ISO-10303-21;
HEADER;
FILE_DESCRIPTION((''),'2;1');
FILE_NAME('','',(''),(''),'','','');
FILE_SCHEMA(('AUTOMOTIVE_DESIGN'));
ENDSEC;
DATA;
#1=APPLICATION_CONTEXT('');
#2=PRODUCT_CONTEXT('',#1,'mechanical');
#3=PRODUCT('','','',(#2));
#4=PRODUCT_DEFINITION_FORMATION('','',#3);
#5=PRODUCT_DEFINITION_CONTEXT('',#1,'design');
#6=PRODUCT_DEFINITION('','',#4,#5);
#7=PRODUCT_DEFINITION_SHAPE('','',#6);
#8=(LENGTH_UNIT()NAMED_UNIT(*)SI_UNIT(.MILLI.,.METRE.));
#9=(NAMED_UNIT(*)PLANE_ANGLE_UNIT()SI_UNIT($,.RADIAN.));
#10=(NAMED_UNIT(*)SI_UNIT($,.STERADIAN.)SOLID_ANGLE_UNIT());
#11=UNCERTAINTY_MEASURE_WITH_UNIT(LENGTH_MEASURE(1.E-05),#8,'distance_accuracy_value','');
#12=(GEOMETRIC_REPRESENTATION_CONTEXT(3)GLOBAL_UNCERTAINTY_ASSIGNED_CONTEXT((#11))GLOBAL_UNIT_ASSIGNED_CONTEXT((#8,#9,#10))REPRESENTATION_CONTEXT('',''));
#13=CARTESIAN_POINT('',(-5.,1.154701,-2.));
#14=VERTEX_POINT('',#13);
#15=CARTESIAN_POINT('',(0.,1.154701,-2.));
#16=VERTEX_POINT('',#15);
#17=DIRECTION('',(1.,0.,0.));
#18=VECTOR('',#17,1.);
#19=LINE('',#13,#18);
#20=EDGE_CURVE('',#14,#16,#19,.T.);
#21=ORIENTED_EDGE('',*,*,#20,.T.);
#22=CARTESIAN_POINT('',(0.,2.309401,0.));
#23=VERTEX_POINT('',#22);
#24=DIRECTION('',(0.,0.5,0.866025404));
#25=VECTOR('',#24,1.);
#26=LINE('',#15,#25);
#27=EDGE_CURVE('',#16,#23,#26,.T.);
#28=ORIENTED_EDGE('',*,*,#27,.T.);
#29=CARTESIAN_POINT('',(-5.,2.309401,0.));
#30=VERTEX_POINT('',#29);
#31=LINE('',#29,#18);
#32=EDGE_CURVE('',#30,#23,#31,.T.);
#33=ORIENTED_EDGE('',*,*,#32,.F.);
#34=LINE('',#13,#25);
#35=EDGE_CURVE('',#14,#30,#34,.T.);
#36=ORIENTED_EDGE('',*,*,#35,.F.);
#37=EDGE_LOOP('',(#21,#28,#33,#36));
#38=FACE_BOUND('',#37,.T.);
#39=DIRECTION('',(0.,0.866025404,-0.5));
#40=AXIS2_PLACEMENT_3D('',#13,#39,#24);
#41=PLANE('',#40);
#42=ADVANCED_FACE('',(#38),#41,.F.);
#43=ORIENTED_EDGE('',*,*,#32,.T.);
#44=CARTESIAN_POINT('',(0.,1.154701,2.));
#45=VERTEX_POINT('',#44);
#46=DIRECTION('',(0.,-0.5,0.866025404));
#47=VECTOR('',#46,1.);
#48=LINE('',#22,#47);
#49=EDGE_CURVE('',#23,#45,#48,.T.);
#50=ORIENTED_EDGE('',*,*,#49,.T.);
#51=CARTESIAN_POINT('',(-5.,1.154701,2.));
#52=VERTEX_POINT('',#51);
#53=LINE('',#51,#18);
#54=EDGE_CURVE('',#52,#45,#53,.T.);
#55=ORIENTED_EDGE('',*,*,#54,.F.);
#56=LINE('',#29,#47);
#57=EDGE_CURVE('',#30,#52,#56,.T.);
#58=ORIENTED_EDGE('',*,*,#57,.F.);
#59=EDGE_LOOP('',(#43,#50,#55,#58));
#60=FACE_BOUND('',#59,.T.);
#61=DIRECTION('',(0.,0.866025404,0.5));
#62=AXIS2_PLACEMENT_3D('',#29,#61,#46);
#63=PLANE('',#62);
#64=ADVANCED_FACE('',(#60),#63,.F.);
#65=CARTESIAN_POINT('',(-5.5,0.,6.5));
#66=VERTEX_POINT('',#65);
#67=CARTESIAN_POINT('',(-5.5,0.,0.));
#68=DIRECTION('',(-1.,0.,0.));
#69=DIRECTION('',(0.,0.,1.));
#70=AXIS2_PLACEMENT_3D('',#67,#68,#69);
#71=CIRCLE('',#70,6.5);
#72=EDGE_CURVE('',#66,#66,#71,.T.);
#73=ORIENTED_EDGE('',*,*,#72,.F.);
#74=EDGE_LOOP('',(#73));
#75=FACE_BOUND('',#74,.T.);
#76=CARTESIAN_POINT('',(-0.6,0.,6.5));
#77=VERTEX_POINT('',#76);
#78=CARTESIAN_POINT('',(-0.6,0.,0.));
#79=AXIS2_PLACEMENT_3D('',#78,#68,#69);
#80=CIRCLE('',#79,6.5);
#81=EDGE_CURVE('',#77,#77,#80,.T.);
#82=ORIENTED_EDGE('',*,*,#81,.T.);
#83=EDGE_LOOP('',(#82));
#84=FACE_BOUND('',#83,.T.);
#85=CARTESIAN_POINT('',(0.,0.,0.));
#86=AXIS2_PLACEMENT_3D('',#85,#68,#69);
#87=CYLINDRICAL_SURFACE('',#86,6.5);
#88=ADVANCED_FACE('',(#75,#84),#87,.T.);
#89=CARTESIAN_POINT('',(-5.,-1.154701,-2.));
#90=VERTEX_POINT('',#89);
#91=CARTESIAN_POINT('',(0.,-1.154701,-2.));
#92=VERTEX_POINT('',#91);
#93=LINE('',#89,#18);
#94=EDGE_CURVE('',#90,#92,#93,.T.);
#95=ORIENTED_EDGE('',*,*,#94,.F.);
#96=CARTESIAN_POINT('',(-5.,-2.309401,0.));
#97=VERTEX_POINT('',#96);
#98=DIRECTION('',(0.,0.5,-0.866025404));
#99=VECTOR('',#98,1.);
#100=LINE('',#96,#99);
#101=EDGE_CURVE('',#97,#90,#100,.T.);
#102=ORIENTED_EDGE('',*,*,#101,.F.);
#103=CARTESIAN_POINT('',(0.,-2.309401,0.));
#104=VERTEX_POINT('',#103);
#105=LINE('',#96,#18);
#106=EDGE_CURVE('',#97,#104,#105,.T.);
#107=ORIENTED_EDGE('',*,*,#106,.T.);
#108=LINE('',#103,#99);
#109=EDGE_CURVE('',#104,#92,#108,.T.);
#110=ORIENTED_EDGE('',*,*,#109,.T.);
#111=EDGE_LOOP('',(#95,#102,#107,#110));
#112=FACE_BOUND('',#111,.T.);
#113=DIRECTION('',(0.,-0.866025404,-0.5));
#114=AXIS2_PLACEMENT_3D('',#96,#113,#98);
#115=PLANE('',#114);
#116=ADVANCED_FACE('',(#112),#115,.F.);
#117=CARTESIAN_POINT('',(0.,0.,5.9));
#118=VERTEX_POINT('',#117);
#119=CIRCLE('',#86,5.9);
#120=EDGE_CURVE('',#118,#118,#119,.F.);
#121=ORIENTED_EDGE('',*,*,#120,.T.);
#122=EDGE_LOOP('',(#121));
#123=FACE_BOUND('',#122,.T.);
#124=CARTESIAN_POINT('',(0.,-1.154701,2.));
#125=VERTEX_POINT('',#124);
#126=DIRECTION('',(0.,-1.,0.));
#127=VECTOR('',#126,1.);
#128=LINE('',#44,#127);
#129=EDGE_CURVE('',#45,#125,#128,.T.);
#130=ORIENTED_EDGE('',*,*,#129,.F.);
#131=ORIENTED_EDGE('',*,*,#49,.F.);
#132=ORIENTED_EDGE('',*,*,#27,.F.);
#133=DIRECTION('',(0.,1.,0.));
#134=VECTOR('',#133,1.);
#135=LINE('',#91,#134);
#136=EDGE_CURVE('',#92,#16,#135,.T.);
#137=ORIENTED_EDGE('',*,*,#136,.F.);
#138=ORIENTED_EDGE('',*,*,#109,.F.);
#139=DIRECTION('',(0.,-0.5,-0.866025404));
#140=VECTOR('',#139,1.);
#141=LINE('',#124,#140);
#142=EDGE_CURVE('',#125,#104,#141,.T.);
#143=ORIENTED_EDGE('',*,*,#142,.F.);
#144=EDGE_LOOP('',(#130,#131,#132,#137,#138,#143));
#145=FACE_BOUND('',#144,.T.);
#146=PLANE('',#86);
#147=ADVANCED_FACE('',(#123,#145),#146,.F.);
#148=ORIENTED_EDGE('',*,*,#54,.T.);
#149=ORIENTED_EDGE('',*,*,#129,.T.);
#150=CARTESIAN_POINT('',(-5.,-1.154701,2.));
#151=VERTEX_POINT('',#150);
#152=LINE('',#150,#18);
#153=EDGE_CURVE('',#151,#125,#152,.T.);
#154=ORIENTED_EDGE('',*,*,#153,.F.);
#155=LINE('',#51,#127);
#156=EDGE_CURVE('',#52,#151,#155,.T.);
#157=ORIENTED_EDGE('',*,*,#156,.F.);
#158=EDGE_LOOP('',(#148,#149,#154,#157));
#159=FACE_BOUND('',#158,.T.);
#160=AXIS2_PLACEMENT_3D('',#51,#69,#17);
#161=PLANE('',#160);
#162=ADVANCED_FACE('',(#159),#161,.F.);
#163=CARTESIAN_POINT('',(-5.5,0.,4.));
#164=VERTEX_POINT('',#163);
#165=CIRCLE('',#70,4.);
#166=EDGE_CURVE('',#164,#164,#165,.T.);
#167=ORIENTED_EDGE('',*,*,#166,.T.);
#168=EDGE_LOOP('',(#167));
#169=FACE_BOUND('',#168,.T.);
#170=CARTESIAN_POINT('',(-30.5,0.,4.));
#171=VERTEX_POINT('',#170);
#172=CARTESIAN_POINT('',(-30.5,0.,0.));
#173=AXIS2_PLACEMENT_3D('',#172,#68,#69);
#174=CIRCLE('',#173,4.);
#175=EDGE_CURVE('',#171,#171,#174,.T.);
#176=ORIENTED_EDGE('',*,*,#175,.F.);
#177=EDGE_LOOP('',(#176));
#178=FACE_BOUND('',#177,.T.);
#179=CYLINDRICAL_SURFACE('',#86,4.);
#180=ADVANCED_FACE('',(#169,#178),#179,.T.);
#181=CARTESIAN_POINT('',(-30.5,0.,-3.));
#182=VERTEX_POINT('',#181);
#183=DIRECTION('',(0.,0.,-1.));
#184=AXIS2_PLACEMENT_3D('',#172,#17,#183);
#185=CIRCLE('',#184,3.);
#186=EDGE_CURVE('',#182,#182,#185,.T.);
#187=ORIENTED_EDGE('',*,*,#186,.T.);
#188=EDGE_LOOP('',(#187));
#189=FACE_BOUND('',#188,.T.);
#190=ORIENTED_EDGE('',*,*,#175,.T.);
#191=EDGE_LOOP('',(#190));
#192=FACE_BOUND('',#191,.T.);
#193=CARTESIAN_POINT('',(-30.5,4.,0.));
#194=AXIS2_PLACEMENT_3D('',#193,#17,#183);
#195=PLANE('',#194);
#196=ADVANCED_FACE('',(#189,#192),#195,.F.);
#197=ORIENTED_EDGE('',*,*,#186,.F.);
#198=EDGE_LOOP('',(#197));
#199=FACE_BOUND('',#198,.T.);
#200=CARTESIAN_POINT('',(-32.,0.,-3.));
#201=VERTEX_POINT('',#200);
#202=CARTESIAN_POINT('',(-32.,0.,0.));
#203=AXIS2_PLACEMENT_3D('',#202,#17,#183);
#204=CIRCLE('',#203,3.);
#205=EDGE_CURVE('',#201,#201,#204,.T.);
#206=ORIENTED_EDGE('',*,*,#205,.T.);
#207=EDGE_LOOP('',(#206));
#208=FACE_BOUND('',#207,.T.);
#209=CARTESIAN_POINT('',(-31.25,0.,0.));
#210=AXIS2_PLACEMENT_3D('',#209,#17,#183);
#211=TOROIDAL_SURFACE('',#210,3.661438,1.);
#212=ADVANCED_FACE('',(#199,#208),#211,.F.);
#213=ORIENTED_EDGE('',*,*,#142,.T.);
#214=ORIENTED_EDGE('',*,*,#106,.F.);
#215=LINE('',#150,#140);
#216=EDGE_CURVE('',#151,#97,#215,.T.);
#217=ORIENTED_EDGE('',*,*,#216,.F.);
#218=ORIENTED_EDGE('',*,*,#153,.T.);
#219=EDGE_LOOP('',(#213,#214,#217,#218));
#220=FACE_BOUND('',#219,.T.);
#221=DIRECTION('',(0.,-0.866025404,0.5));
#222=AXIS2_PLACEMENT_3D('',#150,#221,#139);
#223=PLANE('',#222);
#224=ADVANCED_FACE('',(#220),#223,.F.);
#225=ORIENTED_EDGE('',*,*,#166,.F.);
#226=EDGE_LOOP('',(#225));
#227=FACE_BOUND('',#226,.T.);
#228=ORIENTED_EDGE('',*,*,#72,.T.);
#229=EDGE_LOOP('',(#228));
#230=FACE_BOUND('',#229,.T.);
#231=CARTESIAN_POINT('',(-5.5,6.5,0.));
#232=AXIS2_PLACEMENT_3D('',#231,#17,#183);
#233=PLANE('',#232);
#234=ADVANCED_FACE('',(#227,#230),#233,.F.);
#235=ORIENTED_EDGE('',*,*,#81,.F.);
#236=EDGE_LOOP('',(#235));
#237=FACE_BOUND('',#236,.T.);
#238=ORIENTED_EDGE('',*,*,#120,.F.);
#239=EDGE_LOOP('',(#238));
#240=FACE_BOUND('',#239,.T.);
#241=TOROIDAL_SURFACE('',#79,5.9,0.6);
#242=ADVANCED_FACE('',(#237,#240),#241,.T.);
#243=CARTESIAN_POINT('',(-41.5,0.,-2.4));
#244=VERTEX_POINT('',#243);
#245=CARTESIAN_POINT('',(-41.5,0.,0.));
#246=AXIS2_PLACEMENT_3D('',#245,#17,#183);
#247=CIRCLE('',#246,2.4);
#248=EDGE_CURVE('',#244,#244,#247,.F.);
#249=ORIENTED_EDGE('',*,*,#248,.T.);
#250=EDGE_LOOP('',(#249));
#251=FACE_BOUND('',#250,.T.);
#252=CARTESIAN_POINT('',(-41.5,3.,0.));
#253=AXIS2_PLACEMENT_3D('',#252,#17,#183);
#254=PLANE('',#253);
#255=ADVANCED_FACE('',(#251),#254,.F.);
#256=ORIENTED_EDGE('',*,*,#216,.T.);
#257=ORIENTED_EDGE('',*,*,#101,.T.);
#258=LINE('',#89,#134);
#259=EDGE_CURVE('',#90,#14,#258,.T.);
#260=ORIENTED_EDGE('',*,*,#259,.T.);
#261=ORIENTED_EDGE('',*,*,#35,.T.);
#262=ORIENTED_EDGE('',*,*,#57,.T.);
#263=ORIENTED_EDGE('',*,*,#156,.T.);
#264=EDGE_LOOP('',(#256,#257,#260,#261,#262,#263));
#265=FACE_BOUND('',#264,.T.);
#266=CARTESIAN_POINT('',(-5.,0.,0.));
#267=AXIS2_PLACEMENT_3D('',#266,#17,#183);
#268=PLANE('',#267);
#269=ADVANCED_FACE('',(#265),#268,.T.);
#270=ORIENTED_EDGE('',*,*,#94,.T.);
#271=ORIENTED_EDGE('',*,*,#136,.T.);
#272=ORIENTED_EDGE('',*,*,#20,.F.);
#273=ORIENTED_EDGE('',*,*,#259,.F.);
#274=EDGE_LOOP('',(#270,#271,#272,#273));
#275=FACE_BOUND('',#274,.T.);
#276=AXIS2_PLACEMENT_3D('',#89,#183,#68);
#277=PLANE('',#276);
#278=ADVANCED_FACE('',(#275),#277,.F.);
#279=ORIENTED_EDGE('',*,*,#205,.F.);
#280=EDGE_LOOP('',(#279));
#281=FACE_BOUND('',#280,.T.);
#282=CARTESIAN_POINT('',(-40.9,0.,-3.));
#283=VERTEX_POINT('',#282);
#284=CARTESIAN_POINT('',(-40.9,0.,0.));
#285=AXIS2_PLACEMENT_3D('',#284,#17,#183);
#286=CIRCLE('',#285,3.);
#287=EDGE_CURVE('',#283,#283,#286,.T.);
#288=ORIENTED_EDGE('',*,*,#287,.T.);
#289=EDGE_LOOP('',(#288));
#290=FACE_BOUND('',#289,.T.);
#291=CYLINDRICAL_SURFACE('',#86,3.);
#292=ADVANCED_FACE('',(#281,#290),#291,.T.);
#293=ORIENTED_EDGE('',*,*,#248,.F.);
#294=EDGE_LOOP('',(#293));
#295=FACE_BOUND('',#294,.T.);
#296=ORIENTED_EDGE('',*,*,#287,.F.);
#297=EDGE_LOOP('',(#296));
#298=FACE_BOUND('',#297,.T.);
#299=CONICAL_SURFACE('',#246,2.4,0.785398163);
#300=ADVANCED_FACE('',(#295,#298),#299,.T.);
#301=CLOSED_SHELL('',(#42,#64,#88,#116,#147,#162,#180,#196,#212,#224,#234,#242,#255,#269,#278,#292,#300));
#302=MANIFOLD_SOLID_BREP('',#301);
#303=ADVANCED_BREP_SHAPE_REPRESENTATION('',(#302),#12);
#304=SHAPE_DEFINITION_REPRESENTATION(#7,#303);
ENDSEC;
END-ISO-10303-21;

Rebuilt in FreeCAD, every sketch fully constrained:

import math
import FreeCAD as App
import Part
import Sketcher

V = App.Vector
Q = App.Units.Quantity


def edges_at(feature, points):
    """Names of the edges that pass closest to the given points."""
    edges = feature.Shape.Edges
    near = lambda p: min(range(len(edges)), key=lambda i: edges[i].distToShape(Part.Vertex(*p))[0])
    return sorted({f"Edge{near(p) + 1}" for p in points})


def add_polygon(sketch, points):
    """Adds a closed chain of lines whose ends are joined by coincident constraints."""
    first, n = sketch.GeometryCount, len(points)
    for a, b in zip(points, points[1:] + points[:1]):
        sketch.addGeometry(Part.LineSegment(App.Vector(*a, 0), App.Vector(*b, 0)), False)
    for i in range(n):
        sketch.addConstraint(Sketcher.Constraint("Coincident", first + i, 2, first + (i + 1) % n, 1))

doc = App.newDocument("Part")
params = doc.addObject("Spreadsheet::Sheet", "Params")
for row, (alias, value) in enumerate([
    ("sketch1_width", "25 mm"),
    ("sketch1_width2", "11 mm"),
    ("sketch1_height", "1 mm"),
    ("sketch1_height2", "3 mm"),
    ("sketch1_width3", "5.5 mm"),
    ("revolution_angle", "360 deg"),
    ("fillet_radius", "0.6 mm"),
    ("chamfer_size", "0.6 mm"),
    ("pocket1_length", "5 mm"),
    ("sketch3_radius", "1 mm"),
    ("sketch3_width", "1.5 mm"),
    ("groove_angle", "360 deg"),
], start=1):
    params.set(f"A{row}", alias)
    params.set(f"B{row}", "=" + value)
    params.setAlias(f"B{row}", alias)

body = doc.addObject("PartDesign::Body", "Body")

# Sketch on XY plane
sketch1 = body.newObject("Sketcher::SketchObject", "Sketch")
sketch1.AttachmentSupport = (doc.getObject("XY_Plane"), [""])
sketch1.MapMode = "FlatFace"
add_polygon(sketch1, [(0, 0), (0, 6.5), (-5.5, 6.5), (-5.5, 4), (-30.5, 4), (-30.5, 3), (-41.5, 3), (-41.5, 0)])  # lines 0-7
sketch1.addConstraint([
    Sketcher.Constraint("Vertical", 0),
    Sketcher.Constraint("Horizontal", 1),
    Sketcher.Constraint("Vertical", 2),
    Sketcher.Constraint("Horizontal", 3),
    Sketcher.Constraint("Vertical", 4),
    Sketcher.Constraint("Horizontal", 5),
    Sketcher.Constraint("Vertical", 6),
    Sketcher.Constraint("Horizontal", 7),
    Sketcher.Constraint("Coincident", 7, 2, -1, 1),
    Sketcher.Constraint("DistanceX", 3, 2, 3, 1, Q("25 mm")),
    Sketcher.Constraint("DistanceX", 5, 2, 5, 1, Q("11 mm")),
    Sketcher.Constraint("DistanceY", 4, 2, 4, 1, Q("1 mm")),
    Sketcher.Constraint("DistanceY", 6, 2, 6, 1, Q("3 mm")),
    Sketcher.Constraint("DistanceX", 1, 2, 1, 1, Q("5.5 mm")),
    Sketcher.Constraint("DistanceY", 0, 1, 0, 2, Q("6.5 mm")),
])
sketch1.setExpression("Constraints[17]", "Params.sketch1_width")
sketch1.setExpression("Constraints[18]", "Params.sketch1_width2")
sketch1.setExpression("Constraints[19]", "Params.sketch1_height")
sketch1.setExpression("Constraints[20]", "Params.sketch1_height2")
sketch1.setExpression("Constraints[21]", "Params.sketch1_width3")
revolution = body.newObject("PartDesign::Revolution", "Revolution")
revolution.Profile = sketch1
revolution.ReferenceAxis = (sketch1, ["H_Axis"])
revolution.setExpression("Angle", "Params.revolution_angle")
doc.recompute()

fillet = body.newObject("PartDesign::Fillet", "Fillet")
fillet.Base = (revolution, edges_at(revolution, [(0, -6.5, 0)]))
fillet.setExpression("Radius", "Params.fillet_radius")
doc.recompute()

chamfer = body.newObject("PartDesign::Chamfer", "Chamfer")
chamfer.Base = (fillet, edges_at(fillet, [(-41.5, -3, 0)]))
chamfer.setExpression("Size", "Params.chamfer_size")

# Sketch on YZ plane
sketch2 = body.newObject("Sketcher::SketchObject", "Sketch001")
sketch2.AttachmentSupport = (doc.getObject("YZ_Plane"), [""])
sketch2.MapMode = "FlatFace"
add_polygon(sketch2, [(-1.2, 2), (-2.3, 0), (-1.2, -2), (1.2, -2), (2.3, 0), (1.2, 2)])  # lines 0-5
sketch2.addConstraint([
    Sketcher.Constraint("Horizontal", 2),
    Sketcher.Constraint("Horizontal", 5),
    Sketcher.Constraint("Symmetric", 0, 2, 3, 2, -1, 1),
    Sketcher.Constraint("Symmetric", 1, 2, 4, 2, -1, 1),
    Sketcher.Constraint("PointOnObject", 0, 2, -1),
    Sketcher.Constraint("Parallel", 0, 3),
    Sketcher.Constraint("Vertical", 2, 2, 4, 2),
    Sketcher.Constraint("Angle", 0, Q("-120 deg")),
    Sketcher.Constraint("DistanceY", 1, 2, -1, 1, Q("2 mm")),
    Sketcher.Constraint("DistanceX", 2, 1, 2, 2, Q("2.309401 mm")),
])
pocket1 = body.newObject("PartDesign::Pocket", "Pocket")
pocket1.Profile = sketch2
pocket1.setExpression("Length", "Params.pocket1_length")

# Sketch on XZ plane
sketch3 = body.newObject("Sketcher::SketchObject", "Sketch002")
sketch3.AttachmentSupport = (doc.getObject("XZ_Plane"), [""])
sketch3.MapMode = "FlatFace"
sketch3.addGeometry([
    Part.LineSegment(V(-32, 3, 0), V(-30.5, 3, 0)),
    Part.ArcOfCircle(Part.Circle(V(-31.2, 3.7, 0), V(0, 0, 1), 1), math.radians(-139), math.radians(-41)),
], False)
sketch3.addConstraint([
    Sketcher.Constraint("Coincident", 0, 1, 1, 1),
    Sketcher.Constraint("Coincident", 1, 2, 0, 2),
    Sketcher.Constraint("Horizontal", 0),
    Sketcher.Constraint("Radius", 1, Q("1 mm")),
    Sketcher.Constraint("DistanceX", 0, 1, 0, 2, Q("1.5 mm")),
    Sketcher.Constraint("DistanceX", 0, 1, -1, 1, Q("32 mm")),
    Sketcher.Constraint("DistanceY", -1, 1, 0, 1, Q("3 mm")),
])
sketch3.setExpression("Constraints[3]", "Params.sketch3_radius")
sketch3.setExpression("Constraints[4]", "Params.sketch3_width")
groove = body.newObject("PartDesign::Groove", "Groove")
groove.Profile = sketch3
groove.ReferenceAxis = (sketch3, ["H_Axis"])
groove.setExpression("Angle", "Params.groove_angle")

doc.recompute()
